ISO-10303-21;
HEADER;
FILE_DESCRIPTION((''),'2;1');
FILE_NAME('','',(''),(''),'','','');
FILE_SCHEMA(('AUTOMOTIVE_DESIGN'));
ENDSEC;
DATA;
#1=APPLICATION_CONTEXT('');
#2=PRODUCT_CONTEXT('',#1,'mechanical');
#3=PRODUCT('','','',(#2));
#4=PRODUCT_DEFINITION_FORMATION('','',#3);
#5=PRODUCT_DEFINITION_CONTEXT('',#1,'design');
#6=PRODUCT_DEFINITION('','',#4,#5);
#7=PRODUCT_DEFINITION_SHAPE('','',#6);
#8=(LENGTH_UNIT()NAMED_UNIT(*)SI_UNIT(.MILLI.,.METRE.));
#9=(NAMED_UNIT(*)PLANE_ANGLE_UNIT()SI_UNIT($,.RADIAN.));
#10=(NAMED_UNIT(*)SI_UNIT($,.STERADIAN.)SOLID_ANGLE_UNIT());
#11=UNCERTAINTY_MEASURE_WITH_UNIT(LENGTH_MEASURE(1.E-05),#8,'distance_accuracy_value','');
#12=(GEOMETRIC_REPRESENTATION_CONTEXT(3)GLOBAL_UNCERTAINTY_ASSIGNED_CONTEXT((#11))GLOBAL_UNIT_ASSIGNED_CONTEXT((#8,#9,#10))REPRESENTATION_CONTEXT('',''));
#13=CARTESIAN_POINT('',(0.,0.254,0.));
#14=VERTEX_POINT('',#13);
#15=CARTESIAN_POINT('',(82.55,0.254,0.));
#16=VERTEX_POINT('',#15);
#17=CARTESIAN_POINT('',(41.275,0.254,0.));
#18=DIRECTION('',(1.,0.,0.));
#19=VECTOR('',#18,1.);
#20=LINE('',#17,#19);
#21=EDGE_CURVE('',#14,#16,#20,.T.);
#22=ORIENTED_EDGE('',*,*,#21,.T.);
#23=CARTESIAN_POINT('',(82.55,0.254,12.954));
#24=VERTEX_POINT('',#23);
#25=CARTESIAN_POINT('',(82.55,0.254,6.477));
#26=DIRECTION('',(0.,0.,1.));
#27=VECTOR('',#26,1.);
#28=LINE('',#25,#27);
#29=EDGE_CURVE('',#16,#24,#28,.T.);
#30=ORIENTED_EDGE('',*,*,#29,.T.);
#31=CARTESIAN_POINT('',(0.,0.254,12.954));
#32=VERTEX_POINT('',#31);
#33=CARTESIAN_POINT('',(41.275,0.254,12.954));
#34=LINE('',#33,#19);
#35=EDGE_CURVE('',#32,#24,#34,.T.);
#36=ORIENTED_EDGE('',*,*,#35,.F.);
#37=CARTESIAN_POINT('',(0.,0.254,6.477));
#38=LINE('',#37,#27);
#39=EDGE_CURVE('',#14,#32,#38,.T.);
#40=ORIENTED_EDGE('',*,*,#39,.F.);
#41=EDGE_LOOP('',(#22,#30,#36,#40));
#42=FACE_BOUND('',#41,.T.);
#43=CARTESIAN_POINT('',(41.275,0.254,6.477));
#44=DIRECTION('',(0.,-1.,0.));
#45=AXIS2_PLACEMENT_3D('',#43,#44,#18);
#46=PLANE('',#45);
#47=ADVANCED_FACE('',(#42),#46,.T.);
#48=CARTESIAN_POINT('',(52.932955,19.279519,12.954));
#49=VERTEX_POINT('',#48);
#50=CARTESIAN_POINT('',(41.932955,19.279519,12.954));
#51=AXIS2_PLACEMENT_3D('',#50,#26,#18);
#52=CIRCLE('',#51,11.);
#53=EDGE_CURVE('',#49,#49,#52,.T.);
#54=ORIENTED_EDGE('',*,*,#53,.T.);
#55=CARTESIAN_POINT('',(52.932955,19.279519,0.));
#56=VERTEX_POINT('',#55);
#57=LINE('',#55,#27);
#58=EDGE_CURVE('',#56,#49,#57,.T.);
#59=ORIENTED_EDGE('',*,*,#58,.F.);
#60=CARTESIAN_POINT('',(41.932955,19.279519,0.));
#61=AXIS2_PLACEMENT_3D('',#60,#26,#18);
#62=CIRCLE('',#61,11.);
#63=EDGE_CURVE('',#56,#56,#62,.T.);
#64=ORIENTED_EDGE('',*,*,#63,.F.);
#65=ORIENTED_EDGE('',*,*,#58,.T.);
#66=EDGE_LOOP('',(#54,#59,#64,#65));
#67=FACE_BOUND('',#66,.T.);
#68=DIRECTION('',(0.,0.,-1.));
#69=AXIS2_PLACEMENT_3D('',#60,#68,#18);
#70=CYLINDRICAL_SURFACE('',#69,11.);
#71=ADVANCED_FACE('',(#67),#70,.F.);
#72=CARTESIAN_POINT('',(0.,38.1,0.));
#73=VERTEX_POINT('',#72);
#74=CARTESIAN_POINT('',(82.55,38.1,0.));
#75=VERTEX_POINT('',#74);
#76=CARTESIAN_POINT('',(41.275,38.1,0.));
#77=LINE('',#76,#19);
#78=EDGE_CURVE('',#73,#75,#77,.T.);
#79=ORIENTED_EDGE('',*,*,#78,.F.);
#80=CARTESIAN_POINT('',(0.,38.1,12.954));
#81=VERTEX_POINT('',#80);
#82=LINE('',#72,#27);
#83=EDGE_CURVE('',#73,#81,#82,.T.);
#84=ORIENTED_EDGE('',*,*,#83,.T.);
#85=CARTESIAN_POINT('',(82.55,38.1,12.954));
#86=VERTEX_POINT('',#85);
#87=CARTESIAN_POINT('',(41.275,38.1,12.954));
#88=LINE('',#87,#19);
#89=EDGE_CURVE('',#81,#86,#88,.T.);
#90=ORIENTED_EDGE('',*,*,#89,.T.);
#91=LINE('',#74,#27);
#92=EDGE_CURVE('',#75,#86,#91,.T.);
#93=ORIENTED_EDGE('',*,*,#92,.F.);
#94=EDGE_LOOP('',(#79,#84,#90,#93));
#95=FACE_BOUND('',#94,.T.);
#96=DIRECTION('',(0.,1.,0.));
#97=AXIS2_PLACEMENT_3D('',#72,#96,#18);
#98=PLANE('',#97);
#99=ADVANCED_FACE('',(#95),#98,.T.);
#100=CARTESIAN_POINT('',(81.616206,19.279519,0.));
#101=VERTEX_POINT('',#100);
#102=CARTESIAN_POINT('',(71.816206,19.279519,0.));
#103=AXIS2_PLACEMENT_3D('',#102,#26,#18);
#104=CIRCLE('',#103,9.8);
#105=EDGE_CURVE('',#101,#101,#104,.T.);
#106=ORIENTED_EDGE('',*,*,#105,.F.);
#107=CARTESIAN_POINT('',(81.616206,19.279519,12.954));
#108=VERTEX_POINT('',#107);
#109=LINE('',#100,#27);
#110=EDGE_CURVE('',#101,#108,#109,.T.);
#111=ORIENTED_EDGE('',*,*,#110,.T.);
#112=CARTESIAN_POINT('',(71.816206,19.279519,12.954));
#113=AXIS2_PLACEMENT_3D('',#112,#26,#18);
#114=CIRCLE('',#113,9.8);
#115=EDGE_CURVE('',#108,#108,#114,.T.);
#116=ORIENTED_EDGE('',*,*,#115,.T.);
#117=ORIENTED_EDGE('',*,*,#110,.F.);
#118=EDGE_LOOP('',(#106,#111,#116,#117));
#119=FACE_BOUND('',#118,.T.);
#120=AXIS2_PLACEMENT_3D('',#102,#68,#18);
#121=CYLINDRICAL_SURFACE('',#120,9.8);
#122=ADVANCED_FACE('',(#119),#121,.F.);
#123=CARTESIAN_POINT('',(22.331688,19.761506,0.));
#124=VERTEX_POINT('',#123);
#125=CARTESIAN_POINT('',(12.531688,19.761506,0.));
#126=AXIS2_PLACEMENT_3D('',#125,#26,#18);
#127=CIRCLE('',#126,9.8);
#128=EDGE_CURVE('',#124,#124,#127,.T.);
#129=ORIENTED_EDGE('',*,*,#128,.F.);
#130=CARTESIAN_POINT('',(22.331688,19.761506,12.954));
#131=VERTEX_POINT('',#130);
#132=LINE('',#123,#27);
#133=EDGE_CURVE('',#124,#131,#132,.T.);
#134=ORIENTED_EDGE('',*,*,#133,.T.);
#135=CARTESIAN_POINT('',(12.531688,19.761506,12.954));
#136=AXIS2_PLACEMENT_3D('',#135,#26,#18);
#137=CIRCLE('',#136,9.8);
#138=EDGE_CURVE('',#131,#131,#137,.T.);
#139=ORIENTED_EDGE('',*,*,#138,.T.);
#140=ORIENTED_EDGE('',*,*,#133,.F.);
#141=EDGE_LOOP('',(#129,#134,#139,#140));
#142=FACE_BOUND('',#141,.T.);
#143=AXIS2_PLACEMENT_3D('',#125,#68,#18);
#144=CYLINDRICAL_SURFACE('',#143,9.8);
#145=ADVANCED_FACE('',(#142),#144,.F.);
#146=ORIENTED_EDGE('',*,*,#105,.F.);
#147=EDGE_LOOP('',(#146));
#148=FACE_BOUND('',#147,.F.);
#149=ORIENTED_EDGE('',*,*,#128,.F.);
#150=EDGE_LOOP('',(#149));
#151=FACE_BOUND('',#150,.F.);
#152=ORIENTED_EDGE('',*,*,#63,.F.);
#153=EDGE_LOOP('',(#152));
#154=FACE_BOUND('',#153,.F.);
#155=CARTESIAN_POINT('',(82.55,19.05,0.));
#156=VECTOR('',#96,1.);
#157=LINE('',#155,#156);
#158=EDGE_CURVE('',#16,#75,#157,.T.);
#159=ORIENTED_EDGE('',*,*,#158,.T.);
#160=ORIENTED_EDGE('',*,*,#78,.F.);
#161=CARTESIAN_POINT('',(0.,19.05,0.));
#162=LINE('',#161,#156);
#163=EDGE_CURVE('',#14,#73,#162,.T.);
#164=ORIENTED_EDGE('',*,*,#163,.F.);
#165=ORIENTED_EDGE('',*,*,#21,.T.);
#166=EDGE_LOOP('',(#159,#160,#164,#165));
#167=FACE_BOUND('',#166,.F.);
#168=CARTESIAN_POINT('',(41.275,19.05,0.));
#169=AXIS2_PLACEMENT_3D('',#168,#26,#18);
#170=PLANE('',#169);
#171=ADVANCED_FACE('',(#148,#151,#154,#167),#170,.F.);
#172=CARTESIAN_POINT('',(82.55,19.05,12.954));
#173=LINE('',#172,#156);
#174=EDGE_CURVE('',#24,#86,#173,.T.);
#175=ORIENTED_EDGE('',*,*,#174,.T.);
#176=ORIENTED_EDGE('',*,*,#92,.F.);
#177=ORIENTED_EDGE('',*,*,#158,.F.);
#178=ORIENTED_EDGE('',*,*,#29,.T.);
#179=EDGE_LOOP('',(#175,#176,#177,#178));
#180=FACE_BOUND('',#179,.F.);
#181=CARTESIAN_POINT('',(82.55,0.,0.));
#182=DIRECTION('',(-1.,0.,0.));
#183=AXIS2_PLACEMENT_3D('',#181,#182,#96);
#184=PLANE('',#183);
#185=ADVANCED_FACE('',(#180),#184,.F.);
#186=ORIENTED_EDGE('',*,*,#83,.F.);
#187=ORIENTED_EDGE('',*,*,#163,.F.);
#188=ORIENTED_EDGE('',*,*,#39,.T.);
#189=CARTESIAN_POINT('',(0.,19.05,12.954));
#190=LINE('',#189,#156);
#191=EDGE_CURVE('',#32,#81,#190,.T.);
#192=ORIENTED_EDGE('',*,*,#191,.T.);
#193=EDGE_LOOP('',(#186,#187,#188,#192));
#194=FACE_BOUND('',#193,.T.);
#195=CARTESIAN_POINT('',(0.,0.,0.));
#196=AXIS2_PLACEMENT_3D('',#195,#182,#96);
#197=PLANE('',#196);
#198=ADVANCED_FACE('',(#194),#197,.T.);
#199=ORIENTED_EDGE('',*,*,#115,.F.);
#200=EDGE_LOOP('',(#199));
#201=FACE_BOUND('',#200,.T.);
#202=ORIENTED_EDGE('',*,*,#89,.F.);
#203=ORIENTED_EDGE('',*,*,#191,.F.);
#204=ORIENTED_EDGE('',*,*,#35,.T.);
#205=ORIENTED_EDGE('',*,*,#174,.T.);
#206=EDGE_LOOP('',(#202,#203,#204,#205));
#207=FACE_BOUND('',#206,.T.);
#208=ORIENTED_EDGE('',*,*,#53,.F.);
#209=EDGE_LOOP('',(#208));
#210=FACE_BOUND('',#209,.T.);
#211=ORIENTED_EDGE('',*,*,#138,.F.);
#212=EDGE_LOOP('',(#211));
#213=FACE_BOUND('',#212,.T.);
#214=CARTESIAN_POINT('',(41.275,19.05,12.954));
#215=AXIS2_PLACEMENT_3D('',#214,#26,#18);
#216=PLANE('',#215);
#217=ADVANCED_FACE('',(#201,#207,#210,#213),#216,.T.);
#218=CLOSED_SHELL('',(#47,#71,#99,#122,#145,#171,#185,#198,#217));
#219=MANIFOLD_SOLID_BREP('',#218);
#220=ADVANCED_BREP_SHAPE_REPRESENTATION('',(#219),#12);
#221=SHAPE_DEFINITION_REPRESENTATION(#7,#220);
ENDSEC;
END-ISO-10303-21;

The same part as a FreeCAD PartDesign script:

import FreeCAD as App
import Part
import Sketcher
Q = App.Units.Quantity

doc = App.newDocument("Part")
body = doc.addObject("PartDesign::Body", "Body")

# Sketch on XY plane
sketch1 = body.newObject("Sketcher::SketchObject", "Sketch")
sketch1.AttachmentSupport = (doc.getObject("XY_Plane"), [""])
sketch1.MapMode = "FlatFace"
sketch1.addGeometry([
    Part.LineSegment(App.Vector(0, 38, 0), App.Vector(0, 0, 0)),  # 0
    Part.LineSegment(App.Vector(0, 0, 0), App.Vector(83, 0, 0)),  # 1
    Part.LineSegment(App.Vector(83, 0, 0), App.Vector(83, 38, 0)),  # 2
    Part.LineSegment(App.Vector(83, 38, 0), App.Vector(0, 38, 0)),  # 3
    Part.Circle(App.Vector(13, 20, 0), App.Vector(0, 0, 1), 10),  # 4
    Part.Circle(App.Vector(42, 19, 0), App.Vector(0, 0, 1), 11),  # 5
    Part.Circle(App.Vector(72, 19, 0), App.Vector(0, 0, 1), 10),  # 6
], False)
sketch1.addConstraint([
    Sketcher.Constraint("Coincident", 0, 2, 1, 1),
    Sketcher.Constraint("Coincident", 1, 2, 2, 1),
    Sketcher.Constraint("Coincident", 2, 2, 3, 1),
    Sketcher.Constraint("Coincident", 3, 2, 0, 1),
    Sketcher.Constraint("Vertical", 0),
    Sketcher.Constraint("Horizontal", 1),
    Sketcher.Constraint("Vertical", 2),
    Sketcher.Constraint("Horizontal", 3),
    Sketcher.Constraint("Coincident", 0, 2, -1, 1),
    Sketcher.Constraint("Equal", 4, 6),
    Sketcher.Constraint("Horizontal", 5, 3, 6, 3),
    Sketcher.Constraint("DistanceY", 0, 2, 0, 1, Q("1.5 in")),
    Sketcher.Constraint("DistanceX", 1, 1, 1, 2, Q("3.25 in")),
    Sketcher.Constraint("Diameter", 4, Q("19.6 mm")),
    Sketcher.Constraint("Diameter", 5, Q("22 mm")),
    Sketcher.Constraint("DistanceX", -1, 1, 4, 3, Q("12.531688 mm")),
    Sketcher.Constraint("DistanceY", -1, 1, 5, 3, Q("19.279519 mm")),
    Sketcher.Constraint("DistanceX", 5, 3, 6, 3, Q("29.883251 mm")),
    Sketcher.Constraint("DistanceY", -1, 1, 4, 3, Q("19.761506 mm")),
    Sketcher.Constraint("DistanceX", -1, 1, 5, 3, Q("41.932955 mm")),
])
pad1 = body.newObject("PartDesign::Pad", "Pad")
pad1.Profile = sketch1
pad1.Length = Q("0.51 in")

# Sketch on XZ plane
sketch2 = body.newObject("Sketcher::SketchObject", "Sketch001")
sketch2.AttachmentSupport = (doc.getObject("XZ_Plane"), [""])
sketch2.MapMode = "FlatFace"
sketch2.addGeometry([
    Part.LineSegment(App.Vector(0, 13, 0), App.Vector(0, 0, 0)),
    Part.LineSegment(App.Vector(0, 0, 0), App.Vector(83, 0, 0)),
    Part.LineSegment(App.Vector(83, 0, 0), App.Vector(83, 13, 0)),
    Part.LineSegment(App.Vector(83, 13, 0), App.Vector(0, 13, 0)),
], False)
sketch2.addConstraint([
    Sketcher.Constraint("Coincident", 0, 2, 1, 1),
    Sketcher.Constraint("Coincident", 1, 2, 2, 1),
    Sketcher.Constraint("Coincident", 2, 2, 3, 1),
    Sketcher.Constraint("Coincident", 3, 2, 0, 1),
    Sketcher.Constraint("Vertical", 0),
    Sketcher.Constraint("Horizontal", 1),
    Sketcher.Constraint("Vertical", 2),
    Sketcher.Constraint("Horizontal", 3),
    Sketcher.Constraint("Coincident", 0, 2, -1, 1),
    Sketcher.Constraint("DistanceX", 1, 1, 1, 2, Q("3.25 in")),
    Sketcher.Constraint("DistanceY", 0, 2, 0, 1, Q("0.51 in")),
])
pocket1 = body.newObject("PartDesign::Pocket", "Pocket")
pocket1.Profile = sketch2
pocket1.Length = Q("0.01 in")

doc.recompute()
